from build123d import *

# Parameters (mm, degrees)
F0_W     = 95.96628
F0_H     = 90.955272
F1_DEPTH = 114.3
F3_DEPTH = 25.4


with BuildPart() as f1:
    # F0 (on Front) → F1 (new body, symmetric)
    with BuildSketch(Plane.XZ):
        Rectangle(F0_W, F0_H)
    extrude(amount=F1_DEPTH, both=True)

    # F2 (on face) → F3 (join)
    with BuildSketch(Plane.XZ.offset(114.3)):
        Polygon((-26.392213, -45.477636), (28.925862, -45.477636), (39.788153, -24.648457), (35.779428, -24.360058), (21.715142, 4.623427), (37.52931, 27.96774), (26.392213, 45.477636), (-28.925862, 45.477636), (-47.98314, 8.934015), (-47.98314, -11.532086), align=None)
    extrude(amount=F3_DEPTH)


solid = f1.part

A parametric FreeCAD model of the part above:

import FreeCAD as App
import Part
import Sketcher

V = App.Vector
Q = App.Units.Quantity

doc = App.newDocument("Part")
body = doc.addObject("PartDesign::Body", "Body")

# Sketch on XZ plane
sketch1 = doc.addObject("Sketcher::SketchObject", "Sketch")
body.addObject(sketch1)
sketch1.AttachmentSupport = (doc.XZ_Plane, [""])
sketch1.MapMode = "FlatFace"
sketch1.addGeometry([
    Part.LineSegment(V(-47.98314, 45.477636, 0), V(-47.98314, -45.477636, 0)),
    Part.LineSegment(V(-47.98314, -45.477636, 0), V(47.98314, -45.477636, 0)),
    Part.LineSegment(V(47.98314, -45.477636, 0), V(47.98314, 45.477636, 0)),
    Part.LineSegment(V(47.98314, 45.477636, 0), V(-47.98314, 45.477636, 0)),
], False)
sketch1.addConstraint([
    Sketcher.Constraint("Coincident", 0, 2, 1, 1),
    Sketcher.Constraint("Coincident", 1, 2, 2, 1),
    Sketcher.Constraint("Coincident", 2, 2, 3, 1),
    Sketcher.Constraint("Coincident", 3, 2, 0, 1),
    Sketcher.Constraint("Vertical", 0),
    Sketcher.Constraint("Horizontal", 1),
    Sketcher.Constraint("Vertical", 2),
    Sketcher.Constraint("Horizontal", 3),
    Sketcher.Constraint("Symmetric", 0, 2, 2, 2, -1, 1),
    Sketcher.Constraint("DistanceX", 1, 1, 1, 2, Q("3.7782 in")),
    Sketcher.Constraint("DistanceY", 0, 2, 0, 1, Q("90.955272 mm")),
])
pad1 = doc.addObject("PartDesign::Pad", "Pad")
body.addObject(pad1)
pad1.Profile = sketch1
pad1.Length = Q("9 in")
pad1.Midplane = True

# Sketch on XZ plane
sketch2 = doc.addObject("Sketcher::SketchObject", "Sketch001")
body.addObject(sketch2)
sketch2.AttachmentSupport = (doc.XZ_Plane, [""])
sketch2.MapMode = "FlatFace"
sketch2.AttachmentOffset = App.Placement(V(0, 0, 4.5 * 25.4), App.Rotation())
sketch2.addGeometry([
    Part.LineSegment(V(-26.392213, -45.477636, 0), V(28.925862, -45.477636, 0)),  # 0
    Part.LineSegment(V(28.925862, -45.477636, 0), V(39.788153, -24.648457, 0)),  # 1
    Part.LineSegment(V(39.788153, -24.648457, 0), V(35.779428, -24.360058, 0)),  # 2
    Part.LineSegment(V(35.779428, -24.360058, 0), V(21.715142, 4.623427, 0)),  # 3
    Part.LineSegment(V(21.715142, 4.623427, 0), V(37.52931, 27.96774, 0)),  # 4
    Part.LineSegment(V(37.52931, 27.96774, 0), V(26.392213, 45.477636, 0)),  # 5
    Part.LineSegment(V(26.392213, 45.477636, 0), V(-28.925862, 45.477636, 0)),  # 6
    Part.LineSegment(V(-28.925862, 45.477636, 0), V(-47.98314, 8.934015, 0)),  # 7
    Part.LineSegment(V(-47.98314, 8.934015, 0), V(-47.98314, -11.532086, 0)),  # 8
    Part.LineSegment(V(-47.98314, -11.532086, 0), V(-26.392213, -45.477636, 0)),  # 9
], False)
sketch2.addConstraint([
    Sketcher.Constraint("Coincident", 0, 2, 1, 1),
    Sketcher.Constraint("Coincident", 1, 2, 2, 1),
    Sketcher.Constraint("Coincident", 2, 2, 3, 1),
    Sketcher.Constraint("Coincident", 3, 2, 4, 1),
    Sketcher.Constraint("Coincident", 4, 2, 5, 1),
    Sketcher.Constraint("Coincident", 5, 2, 6, 1),
    Sketcher.Constraint("Coincident", 6, 2, 7, 1),
    Sketcher.Constraint("Coincident", 7, 2, 8, 1),
    Sketcher.Constraint("Coincident", 8, 2, 9, 1),
    Sketcher.Constraint("Coincident", 9, 2, 0, 1),
    Sketcher.Constraint("Horizontal", 0),
    Sketcher.Constraint("Horizontal", 6),
    Sketcher.Constraint("Vertical", 8),
    Sketcher.Constraint("Symmetric", 0, 2, 6, 2, -1, 1),
    Sketcher.Constraint("Parallel", 1, 7),
    Sketcher.Constraint("Parallel", 5, 9),
    Sketcher.Constraint("Equal", 0, 6),
    Sketcher.Constraint("Distance", 4, Q("1.1101 in")),
    Sketcher.Constraint("DistanceY", 8, 2, 8, 1, Q("20.466101 mm")),
    Sketcher.Constraint("DistanceX", 7, 2, -1, 1, Q("1.8891 in")),
    Sketcher.Constraint("DistanceY", 1, 2, 2, 2, Q("0.288399 mm")),
    Sketcher.Constraint("DistanceX", 8, 2, 0, 2, Q("76.909002 mm")),
    Sketcher.Constraint("Distance", 1, Q("23.491361 mm")),
    Sketcher.Constraint("Distance", 5, Q("20.75166 mm")),
    Sketcher.Constraint("Distance", 7, Q("41.21427 mm")),
    Sketcher.Constraint("DistanceX", 0, 1, 0, 2, Q("55.318075 mm")),
    Sketcher.Constraint("DistanceX", -1, 1, 2, 2, Q("35.779428 mm")),
    Sketcher.Constraint("DistanceX", -1, 1, 3, 2, Q("21.715142 mm")),
    Sketcher.Constraint("DistanceX", -1, 1, 4, 2, Q("37.52931 mm")),
])
pad2 = doc.addObject("PartDesign::Pad", "Pad001")
body.addObject(pad2)
pad2.Profile = sketch2
pad2.Length = Q("1 in")

doc.recompute()
